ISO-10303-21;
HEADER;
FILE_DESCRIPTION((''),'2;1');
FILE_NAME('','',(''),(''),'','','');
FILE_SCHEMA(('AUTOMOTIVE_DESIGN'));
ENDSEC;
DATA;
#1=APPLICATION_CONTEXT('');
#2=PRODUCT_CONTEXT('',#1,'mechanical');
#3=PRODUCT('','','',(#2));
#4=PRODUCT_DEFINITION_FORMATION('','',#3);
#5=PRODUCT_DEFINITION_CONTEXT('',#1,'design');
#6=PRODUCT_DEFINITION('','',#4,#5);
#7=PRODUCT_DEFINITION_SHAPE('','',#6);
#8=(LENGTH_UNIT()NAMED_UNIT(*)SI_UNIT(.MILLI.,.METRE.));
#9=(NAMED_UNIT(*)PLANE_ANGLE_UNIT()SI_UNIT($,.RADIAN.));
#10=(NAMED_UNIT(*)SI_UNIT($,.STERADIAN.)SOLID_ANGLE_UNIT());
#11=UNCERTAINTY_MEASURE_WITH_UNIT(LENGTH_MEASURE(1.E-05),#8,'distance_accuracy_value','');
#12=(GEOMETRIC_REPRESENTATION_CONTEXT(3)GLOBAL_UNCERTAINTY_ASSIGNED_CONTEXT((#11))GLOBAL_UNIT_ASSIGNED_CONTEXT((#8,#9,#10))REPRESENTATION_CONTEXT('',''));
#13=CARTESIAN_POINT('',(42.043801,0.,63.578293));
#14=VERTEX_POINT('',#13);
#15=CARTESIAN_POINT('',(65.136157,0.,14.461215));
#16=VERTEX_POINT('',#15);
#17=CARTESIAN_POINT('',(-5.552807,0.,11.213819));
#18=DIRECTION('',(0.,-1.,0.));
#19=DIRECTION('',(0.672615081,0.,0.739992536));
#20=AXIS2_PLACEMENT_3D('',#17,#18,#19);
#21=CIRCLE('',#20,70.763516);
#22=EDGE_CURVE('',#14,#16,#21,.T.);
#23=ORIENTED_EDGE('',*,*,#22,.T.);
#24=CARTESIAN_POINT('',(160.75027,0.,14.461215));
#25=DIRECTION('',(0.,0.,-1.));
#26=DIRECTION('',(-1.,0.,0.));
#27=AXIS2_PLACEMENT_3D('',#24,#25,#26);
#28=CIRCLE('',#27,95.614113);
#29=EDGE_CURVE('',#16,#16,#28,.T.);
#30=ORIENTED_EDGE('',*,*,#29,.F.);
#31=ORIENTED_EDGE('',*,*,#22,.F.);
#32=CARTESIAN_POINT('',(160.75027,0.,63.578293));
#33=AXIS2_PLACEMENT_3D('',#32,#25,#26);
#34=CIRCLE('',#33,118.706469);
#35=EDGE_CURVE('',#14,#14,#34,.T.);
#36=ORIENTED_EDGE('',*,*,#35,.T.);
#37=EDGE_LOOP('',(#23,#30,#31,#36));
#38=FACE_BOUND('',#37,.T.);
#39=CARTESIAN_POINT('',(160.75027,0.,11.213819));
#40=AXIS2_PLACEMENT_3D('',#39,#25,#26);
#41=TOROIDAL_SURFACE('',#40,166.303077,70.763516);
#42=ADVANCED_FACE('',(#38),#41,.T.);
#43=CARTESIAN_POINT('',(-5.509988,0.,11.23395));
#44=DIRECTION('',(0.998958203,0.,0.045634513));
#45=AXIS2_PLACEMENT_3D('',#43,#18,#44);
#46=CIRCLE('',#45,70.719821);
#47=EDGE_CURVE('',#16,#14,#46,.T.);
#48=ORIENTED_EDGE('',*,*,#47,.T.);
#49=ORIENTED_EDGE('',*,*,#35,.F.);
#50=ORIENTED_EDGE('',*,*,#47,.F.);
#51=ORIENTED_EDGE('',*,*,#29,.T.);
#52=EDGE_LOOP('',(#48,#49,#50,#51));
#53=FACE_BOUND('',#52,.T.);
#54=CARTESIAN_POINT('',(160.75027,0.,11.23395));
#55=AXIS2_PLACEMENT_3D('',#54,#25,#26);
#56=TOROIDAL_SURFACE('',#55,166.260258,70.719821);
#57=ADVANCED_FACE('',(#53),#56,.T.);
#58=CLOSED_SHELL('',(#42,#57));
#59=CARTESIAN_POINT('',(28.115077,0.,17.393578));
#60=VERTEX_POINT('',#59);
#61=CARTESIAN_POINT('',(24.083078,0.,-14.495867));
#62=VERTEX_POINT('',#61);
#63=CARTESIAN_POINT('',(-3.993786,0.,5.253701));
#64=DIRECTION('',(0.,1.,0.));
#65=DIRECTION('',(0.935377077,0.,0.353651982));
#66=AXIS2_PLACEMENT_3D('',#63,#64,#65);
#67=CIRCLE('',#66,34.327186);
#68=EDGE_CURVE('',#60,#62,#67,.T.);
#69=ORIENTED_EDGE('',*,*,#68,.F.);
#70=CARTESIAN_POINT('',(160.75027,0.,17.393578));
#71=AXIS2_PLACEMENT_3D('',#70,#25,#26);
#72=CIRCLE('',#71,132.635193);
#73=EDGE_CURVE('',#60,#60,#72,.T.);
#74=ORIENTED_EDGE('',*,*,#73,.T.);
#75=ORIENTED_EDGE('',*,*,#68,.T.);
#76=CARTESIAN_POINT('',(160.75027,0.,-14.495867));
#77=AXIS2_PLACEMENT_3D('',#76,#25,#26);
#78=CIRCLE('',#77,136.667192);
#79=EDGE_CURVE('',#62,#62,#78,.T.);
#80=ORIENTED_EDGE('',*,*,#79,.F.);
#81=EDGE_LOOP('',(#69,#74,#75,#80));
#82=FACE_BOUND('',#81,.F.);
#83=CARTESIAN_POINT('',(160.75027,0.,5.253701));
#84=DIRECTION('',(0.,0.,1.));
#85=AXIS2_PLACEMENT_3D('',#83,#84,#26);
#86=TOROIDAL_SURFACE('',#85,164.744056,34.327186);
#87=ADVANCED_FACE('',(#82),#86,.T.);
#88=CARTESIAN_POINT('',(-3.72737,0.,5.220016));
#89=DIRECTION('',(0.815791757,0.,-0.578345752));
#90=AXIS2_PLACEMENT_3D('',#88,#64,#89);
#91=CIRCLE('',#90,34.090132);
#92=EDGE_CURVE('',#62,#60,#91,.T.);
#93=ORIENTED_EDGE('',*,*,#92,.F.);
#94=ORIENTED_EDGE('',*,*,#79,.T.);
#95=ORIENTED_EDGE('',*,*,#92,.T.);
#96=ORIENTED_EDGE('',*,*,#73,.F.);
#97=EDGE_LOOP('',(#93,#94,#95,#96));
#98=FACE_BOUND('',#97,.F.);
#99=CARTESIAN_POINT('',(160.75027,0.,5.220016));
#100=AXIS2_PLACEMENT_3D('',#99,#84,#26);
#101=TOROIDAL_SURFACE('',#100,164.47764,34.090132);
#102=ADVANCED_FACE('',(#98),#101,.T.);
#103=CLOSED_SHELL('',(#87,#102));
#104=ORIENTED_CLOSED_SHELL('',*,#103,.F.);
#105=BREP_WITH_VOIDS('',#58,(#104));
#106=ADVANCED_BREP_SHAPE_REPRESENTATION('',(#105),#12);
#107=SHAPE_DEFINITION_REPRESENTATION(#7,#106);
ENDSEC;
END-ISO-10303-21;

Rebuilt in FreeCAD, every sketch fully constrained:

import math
import FreeCAD as App
import Part
import Sketcher
from FreeCAD import Vector

doc = App.newDocument("Part")
body = doc.addObject("PartDesign::Body", "Body")

# Sketch on XZ plane
sketch1 = doc.addObject("Sketcher::SketchObject", "Sketch")
body.addObject(sketch1)
sketch1.AttachmentSupport = (doc.XZ_Plane, [""])
sketch1.MapMode = "FlatFace"
sketch1.addGeometry([
    Part.ArcOfCircle(Part.Circle(Vector(-6, 11, 0), Vector(0, 0, 1), 71), math.radians(3), math.radians(48)),
    Part.ArcOfCircle(Part.Circle(Vector(-6, 11, 0), Vector(0, 0, 1), 71), math.radians(48), math.radians(363)),
    Part.ArcOfCircle(Part.Circle(Vector(-4, 5, 0), Vector(0, 0, 1), 34), math.radians(-35), math.radians(21)),
    Part.ArcOfCircle(Part.Circle(Vector(-4, 5, 0), Vector(0, 0, 1), 34), math.radians(21), math.radians(325)),
], False)
sketch1.addGeometry(Part.LineSegment(Vector(161, 64, 0), Vector(161, -14, 0)), True)  # axis
sketch1.addConstraint([
    Sketcher.Constraint("Coincident", 0, 1, 1, 2),
    Sketcher.Constraint("Coincident", 1, 1, 0, 2),
    Sketcher.Constraint("Coincident", 2, 1, 3, 2),
    Sketcher.Constraint("Coincident", 3, 1, 2, 2),
    Sketcher.Constraint("Vertical", 4),
    Sketcher.Constraint("Horizontal", 1, 1, 4, 1),
    Sketcher.Constraint("Horizontal", 2, 1, 4, 2),
    Sketcher.Constraint("Radius", 0, 70.719821),
    Sketcher.Constraint("Radius", 3, 34.090132),
    Sketcher.Constraint("Radius", 1, 70.763516),
    Sketcher.Constraint("Radius", 2, 34.327186),
    Sketcher.Constraint("DistanceX", 2, 1, 3, 1, 4.031999),
    Sketcher.Constraint("DistanceY", 4, 2, 4, 1, 78.07416),
    Sketcher.Constraint("DistanceY", -1, 1, 2, 3, 5.253701),
    Sketcher.Constraint("DistanceX", -1, 1, 1, 1, 42.043801),
    Sketcher.Constraint("DistanceX", 0, 3, 2, 3, 1.516202),
    Sketcher.Constraint("DistanceY", 3, 3, 0, 1, 9.241199),
    Sketcher.Constraint("DistanceX", 0, 3, -1, 1, 5.509988),
    Sketcher.Constraint("DistanceY", -1, 1, 0, 3, 11.23395),
    Sketcher.Constraint("DistanceX", -1, 1, 4, 1, 160.75027),
])
revolution = doc.addObject("PartDesign::Revolution", "Revolution")
body.addObject(revolution)
revolution.Profile = sketch1
revolution.ReferenceAxis = (sketch1, ["Axis0"])
revolution.Angle = 360

doc.recompute()
